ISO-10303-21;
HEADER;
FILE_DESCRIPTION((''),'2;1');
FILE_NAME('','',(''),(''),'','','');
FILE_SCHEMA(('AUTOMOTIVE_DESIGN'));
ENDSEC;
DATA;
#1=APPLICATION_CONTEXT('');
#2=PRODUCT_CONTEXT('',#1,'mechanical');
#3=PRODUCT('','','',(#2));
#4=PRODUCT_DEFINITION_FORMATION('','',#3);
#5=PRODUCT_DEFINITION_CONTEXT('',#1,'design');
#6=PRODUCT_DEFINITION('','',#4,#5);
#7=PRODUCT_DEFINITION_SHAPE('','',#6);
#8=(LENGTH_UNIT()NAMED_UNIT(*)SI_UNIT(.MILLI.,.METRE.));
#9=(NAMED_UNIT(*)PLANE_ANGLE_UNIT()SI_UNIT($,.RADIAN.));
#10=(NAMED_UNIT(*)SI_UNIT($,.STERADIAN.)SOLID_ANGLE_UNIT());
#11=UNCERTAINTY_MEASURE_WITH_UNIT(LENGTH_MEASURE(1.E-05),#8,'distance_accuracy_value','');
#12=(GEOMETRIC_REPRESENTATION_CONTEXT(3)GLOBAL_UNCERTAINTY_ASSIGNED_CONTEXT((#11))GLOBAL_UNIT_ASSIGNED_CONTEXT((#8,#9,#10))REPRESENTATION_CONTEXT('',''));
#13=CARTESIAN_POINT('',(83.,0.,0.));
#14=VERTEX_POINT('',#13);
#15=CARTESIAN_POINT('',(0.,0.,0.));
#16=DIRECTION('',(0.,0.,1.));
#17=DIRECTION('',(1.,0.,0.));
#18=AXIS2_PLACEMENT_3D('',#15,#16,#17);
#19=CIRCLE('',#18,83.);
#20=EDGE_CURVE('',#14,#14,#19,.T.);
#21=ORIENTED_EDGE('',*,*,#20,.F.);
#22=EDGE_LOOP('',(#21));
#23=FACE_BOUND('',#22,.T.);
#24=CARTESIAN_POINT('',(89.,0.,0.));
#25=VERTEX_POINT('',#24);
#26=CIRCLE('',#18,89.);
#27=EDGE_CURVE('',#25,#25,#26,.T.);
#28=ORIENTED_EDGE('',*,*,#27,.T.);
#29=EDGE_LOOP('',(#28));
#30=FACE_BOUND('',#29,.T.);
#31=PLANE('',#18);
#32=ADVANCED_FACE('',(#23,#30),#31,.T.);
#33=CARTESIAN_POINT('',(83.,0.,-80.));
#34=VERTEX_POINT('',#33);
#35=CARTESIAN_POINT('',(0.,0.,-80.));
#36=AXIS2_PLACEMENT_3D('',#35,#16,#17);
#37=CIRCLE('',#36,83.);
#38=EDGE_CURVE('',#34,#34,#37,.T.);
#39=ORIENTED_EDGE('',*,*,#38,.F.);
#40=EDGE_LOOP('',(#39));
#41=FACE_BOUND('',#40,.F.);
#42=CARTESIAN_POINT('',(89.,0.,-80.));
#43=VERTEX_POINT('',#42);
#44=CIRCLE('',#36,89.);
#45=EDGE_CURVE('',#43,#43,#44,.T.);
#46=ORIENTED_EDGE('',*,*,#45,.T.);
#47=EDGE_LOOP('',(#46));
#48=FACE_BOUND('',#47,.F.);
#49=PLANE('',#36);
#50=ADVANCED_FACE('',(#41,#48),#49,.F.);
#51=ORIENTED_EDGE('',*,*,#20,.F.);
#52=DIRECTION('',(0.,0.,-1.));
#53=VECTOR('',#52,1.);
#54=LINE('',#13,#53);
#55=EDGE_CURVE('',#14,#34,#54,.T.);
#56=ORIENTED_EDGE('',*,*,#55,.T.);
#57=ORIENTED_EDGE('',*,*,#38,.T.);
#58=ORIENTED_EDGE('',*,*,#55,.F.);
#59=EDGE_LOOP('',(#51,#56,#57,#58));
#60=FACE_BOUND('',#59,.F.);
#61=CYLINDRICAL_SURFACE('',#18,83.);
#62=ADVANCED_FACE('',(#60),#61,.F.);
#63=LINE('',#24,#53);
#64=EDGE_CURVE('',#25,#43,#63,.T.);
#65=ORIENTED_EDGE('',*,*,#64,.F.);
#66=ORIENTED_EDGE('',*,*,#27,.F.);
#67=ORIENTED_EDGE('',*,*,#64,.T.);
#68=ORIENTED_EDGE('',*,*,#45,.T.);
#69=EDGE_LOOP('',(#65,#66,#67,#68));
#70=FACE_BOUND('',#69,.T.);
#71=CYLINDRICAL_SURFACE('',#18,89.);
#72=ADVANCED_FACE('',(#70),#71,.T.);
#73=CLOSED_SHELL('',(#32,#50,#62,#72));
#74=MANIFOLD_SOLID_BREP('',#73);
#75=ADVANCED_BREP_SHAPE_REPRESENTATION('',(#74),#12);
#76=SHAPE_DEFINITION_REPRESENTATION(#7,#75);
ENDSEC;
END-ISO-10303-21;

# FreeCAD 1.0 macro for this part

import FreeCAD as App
import Part
import Sketcher
from FreeCAD import Vector

doc = App.newDocument("Part")
body = doc.addObject("PartDesign::Body", "Body")

# Sketch on XY plane
sketch1 = body.newObject("Sketcher::SketchObject", "Sketch")
sketch1.AttachmentSupport = (doc.getObject("XY_Plane"), [""])
sketch1.MapMode = "FlatFace"
sketch1.addGeometry([
    Part.Circle(Vector(0, 0, 0), Vector(0, 0, 1), 89),
    Part.Circle(Vector(0, 0, 0), Vector(0, 0, 1), 83),
], False)
sketch1.addConstraint([
    Sketcher.Constraint("Coincident", 0, 3, -1, 1),
    Sketcher.Constraint("Coincident", 1, 3, -1, 1),
    Sketcher.Constraint("Diameter", 0, 178.0),
    Sketcher.Constraint("Diameter", 1, 166.0),
])
pad1 = body.newObject("PartDesign::Pad", "Pad")
pad1.Profile = sketch1
pad1.Length = 80
pad1.Reversed = True

doc.recompute()
